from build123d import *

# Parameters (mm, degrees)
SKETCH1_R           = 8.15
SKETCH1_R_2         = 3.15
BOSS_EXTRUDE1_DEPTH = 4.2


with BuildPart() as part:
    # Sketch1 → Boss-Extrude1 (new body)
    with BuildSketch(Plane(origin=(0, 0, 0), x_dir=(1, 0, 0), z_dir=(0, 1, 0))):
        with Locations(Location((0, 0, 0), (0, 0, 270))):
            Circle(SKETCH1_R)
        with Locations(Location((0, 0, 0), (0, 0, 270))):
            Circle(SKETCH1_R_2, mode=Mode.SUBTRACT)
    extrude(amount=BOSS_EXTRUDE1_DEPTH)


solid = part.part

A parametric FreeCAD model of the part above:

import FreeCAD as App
import Part
import Sketcher

V = App.Vector

doc = App.newDocument("Part")
body = doc.addObject("PartDesign::Body", "Body")

# Sketch on XZ plane
sketch1 = body.newObject("Sketcher::SketchObject", "Sketch")
sketch1.AttachmentSupport = (doc.getObject("XZ_Plane"), [""])
sketch1.MapMode = "FlatFace"
sketch1.addGeometry(Part.Circle(V(0, 0, 0), V(0, 0, 1), 8.2), False)
sketch1.addGeometry(Part.Circle(V(0, 0, 0), V(0, 0, 1), 3.1), False)
sketch1.addConstraint(Sketcher.Constraint("Coincident", 0, 3, -1, 1))
sketch1.addConstraint(Sketcher.Constraint("Coincident", 1, 3, -1, 1))
sketch1.addConstraint(Sketcher.Constraint("Diameter", 0, 16.3))
sketch1.addConstraint(Sketcher.Constraint("Diameter", 1, 6.3))
pad1 = body.newObject("PartDesign::Pad", "Pad")
pad1.Profile = sketch1
pad1.Length = 4.2
pad1.Reversed = True

doc.recompute()
